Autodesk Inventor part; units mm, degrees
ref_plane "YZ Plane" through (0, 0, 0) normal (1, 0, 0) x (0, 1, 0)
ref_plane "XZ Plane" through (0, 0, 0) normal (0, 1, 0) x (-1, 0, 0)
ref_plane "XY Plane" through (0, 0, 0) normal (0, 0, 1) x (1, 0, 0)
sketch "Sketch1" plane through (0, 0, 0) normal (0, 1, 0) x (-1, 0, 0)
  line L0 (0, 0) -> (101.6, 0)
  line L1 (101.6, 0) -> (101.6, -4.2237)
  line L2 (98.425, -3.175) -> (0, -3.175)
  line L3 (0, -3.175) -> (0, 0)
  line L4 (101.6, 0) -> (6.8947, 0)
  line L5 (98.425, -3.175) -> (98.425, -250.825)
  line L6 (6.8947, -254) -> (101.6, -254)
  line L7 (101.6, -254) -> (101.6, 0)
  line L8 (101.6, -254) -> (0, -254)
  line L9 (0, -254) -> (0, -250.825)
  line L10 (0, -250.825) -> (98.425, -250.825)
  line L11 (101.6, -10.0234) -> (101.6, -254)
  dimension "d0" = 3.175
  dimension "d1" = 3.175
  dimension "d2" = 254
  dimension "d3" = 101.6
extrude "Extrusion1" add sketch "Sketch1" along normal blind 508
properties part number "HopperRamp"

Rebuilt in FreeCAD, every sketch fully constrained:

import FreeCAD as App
import Part
import Sketcher
from FreeCAD import Vector
Q = App.Units.Quantity


def add_polygon(sketch, points):
    """Adds a closed chain of lines whose ends are joined by coincident constraints."""
    first, n = sketch.GeometryCount, len(points)
    for a, b in zip(points, points[1:] + points[:1]):
        sketch.addGeometry(Part.LineSegment(App.Vector(*a, 0), App.Vector(*b, 0)), False)
    for i in range(n):
        sketch.addConstraint(Sketcher.Constraint("Coincident", first + i, 2, first + (i + 1) % n, 1))

doc = App.newDocument("Part")
body = doc.addObject("PartDesign::Body", "Body")

# Sketch on XZ plane
sketch1 = body.newObject("Sketcher::SketchObject", "Sketch")
sketch1.AttachmentSupport = (doc.getObject("XZ_Plane"), [""])
sketch1.MapMode = "FlatFace"
add_polygon(sketch1, [(-101.6, 0), (0, 0), (0, -3.2), (-98.4, -3.2), (-98.4, -250.8), (0, -250.8), (0, -254), (-101.6, -254)])  # lines 0-7
sketch1.addConstraint([
    Sketcher.Constraint("Horizontal", 0),
    Sketcher.Constraint("Vertical", 1),
    Sketcher.Constraint("Horizontal", 2),
    Sketcher.Constraint("Vertical", 3),
    Sketcher.Constraint("Horizontal", 4),
    Sketcher.Constraint("Vertical", 5),
    Sketcher.Constraint("Horizontal", 6),
    Sketcher.Constraint("Vertical", 7),
    Sketcher.Constraint("Coincident", 0, 2, -1, 1),
    Sketcher.Constraint("PointOnObject", 4, 2, -2),
    Sketcher.Constraint("Equal", 1, 5),
    Sketcher.Constraint("DistanceX", 0, 1, 0, 2, Q("4 in")),
    Sketcher.Constraint("DistanceY", 7, 1, 7, 2, Q("10 in")),
    Sketcher.Constraint("DistanceY", 1, 2, 1, 1, Q("0.125 in")),
    Sketcher.Constraint("DistanceX", 6, 2, 3, 2, Q("0.125 in")),
])
pad1 = body.newObject("PartDesign::Pad", "Pad")
pad1.Profile = sketch1
pad1.Length = Q("20 in")
pad1.Reversed = True

doc.recompute()
